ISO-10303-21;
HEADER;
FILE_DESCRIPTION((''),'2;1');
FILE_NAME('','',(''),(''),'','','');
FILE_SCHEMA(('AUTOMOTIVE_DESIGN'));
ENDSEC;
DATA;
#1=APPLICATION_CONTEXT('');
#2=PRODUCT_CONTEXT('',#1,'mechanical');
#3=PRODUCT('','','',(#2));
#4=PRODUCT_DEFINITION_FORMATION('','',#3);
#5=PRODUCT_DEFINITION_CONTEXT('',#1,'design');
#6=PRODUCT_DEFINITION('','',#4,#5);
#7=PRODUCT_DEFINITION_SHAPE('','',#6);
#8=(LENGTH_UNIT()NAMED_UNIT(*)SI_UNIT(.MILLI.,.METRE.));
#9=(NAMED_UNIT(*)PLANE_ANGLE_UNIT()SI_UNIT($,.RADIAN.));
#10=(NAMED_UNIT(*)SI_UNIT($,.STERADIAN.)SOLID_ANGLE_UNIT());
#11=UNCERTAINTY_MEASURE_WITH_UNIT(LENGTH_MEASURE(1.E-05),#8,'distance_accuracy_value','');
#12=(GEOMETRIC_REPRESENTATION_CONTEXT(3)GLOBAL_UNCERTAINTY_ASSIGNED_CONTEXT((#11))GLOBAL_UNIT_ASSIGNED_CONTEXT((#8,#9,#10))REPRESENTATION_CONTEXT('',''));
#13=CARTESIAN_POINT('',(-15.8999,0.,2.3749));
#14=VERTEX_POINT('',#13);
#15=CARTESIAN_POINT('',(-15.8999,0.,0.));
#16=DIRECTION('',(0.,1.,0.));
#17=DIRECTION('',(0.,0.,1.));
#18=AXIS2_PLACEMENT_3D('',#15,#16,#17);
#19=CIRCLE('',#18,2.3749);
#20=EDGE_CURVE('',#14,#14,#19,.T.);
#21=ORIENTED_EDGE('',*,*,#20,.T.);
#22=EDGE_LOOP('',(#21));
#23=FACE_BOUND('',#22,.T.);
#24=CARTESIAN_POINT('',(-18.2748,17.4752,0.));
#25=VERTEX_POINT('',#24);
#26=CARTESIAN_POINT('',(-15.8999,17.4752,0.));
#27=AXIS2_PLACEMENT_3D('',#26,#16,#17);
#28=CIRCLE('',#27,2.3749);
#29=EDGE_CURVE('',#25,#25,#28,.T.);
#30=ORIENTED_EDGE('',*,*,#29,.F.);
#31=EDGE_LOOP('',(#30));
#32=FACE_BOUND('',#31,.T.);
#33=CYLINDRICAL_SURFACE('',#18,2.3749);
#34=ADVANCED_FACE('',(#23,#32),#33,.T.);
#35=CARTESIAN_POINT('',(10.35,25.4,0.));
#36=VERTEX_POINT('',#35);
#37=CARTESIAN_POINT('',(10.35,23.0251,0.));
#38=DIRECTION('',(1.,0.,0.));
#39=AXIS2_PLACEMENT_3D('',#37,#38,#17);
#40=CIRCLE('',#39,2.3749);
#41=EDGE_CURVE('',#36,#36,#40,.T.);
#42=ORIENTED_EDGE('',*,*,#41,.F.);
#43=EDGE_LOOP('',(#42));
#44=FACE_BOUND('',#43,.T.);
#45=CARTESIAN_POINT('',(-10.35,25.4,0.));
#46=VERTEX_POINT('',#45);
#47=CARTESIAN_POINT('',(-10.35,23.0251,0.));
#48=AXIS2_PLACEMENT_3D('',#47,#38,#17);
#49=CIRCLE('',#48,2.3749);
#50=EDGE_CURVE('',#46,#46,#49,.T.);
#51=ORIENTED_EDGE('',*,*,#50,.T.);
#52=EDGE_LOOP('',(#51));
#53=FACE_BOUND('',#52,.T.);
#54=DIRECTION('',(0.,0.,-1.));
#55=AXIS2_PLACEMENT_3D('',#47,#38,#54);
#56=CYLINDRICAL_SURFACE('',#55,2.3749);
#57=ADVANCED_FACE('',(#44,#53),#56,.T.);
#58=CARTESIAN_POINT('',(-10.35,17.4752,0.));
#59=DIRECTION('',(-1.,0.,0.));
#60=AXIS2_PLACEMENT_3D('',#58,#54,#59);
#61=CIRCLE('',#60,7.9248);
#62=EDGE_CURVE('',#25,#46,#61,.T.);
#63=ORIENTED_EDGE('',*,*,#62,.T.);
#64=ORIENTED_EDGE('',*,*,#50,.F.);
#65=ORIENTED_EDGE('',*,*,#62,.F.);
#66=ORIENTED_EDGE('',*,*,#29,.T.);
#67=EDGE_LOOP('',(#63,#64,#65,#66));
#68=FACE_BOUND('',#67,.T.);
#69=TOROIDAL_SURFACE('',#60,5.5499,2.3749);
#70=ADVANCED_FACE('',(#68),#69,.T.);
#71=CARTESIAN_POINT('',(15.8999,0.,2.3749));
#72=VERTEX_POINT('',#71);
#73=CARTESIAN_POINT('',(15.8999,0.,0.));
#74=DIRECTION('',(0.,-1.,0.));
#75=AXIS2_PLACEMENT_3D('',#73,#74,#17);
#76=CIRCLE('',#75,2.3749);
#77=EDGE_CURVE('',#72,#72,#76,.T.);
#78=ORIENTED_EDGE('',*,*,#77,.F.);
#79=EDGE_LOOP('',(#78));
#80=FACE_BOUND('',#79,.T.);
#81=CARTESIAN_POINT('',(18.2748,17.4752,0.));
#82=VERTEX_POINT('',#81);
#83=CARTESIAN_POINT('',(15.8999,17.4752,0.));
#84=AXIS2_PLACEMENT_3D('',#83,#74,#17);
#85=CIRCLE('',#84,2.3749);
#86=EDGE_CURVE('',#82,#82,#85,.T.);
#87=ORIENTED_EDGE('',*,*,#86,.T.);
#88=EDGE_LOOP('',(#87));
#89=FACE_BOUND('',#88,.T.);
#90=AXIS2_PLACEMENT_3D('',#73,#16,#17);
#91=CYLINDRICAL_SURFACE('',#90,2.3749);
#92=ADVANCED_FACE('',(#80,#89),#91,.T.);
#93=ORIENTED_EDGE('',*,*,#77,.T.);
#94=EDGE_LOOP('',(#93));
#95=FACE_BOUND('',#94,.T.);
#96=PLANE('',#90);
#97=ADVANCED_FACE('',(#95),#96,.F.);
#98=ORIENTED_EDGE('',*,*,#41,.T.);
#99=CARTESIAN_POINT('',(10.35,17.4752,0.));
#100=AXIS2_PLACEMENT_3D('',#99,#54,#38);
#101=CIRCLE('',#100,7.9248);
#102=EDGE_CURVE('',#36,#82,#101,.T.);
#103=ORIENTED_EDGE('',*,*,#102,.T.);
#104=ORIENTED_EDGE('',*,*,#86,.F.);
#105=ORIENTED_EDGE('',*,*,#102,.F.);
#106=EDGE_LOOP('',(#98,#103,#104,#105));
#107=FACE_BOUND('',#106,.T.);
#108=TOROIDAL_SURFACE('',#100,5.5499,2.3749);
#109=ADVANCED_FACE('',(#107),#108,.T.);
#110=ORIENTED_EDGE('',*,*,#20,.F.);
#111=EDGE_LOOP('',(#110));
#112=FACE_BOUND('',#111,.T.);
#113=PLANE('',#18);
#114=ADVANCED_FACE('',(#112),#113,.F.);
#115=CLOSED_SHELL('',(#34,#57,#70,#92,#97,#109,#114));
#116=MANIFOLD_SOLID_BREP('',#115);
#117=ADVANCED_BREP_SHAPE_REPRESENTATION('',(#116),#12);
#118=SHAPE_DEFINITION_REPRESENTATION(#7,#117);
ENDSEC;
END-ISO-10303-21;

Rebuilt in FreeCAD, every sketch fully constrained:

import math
import FreeCAD as App
import Part
import Sketcher
Q = App.Units.Quantity

doc = App.newDocument("Part")
params = doc.addObject("Spreadsheet::Sheet", "Params")
for row, (alias, value) in enumerate([
    ("sketch1_diameter", "0.187 in"),
    ("sketch2_height", "0.688 in"),
], start=1):
    params.set(f"A{row}", alias)
    params.set(f"B{row}", "=" + value)
    params.setAlias(f"B{row}", alias)

body = doc.addObject("PartDesign::Body", "Body")

# Sketch on XZ plane
sketch1 = body.newObject("Sketcher::SketchObject", "Sketch")
sketch1.AttachmentSupport = (doc.getObject("XZ_Plane"), [""])
sketch1.MapMode = "FlatFace"
sketch1.addGeometry(Part.Circle(App.Vector(-15.9, 0, 0), App.Vector(0, 0, 1), 2.4), False)
sketch1.addConstraint([
    Sketcher.Constraint("PointOnObject", 0, 3, -1),
    Sketcher.Constraint("Diameter", 0, Q("0.187 in")),
    Sketcher.Constraint("DistanceX", 0, 3, -1, 1, 15.8999),
])
sketch1.setExpression("Constraints[1]", "Params.sketch1_diameter")

# Sketch on XY plane
sketch2 = body.newObject("Sketcher::SketchObject", "Sketch001")
sketch2.AttachmentSupport = (doc.getObject("XY_Plane"), [""])
sketch2.MapMode = "FlatFace"
sketch2.addGeometry([
    Part.LineSegment(App.Vector(0, 23, 0), App.Vector(-10, 23, 0)),
    Part.ArcOfCircle(Part.Circle(App.Vector(-10, 17, 0), App.Vector(0, 0, 1), 6), math.radians(90), math.radians(180)),
    Part.LineSegment(App.Vector(-16, 17, 0), App.Vector(-16, 0, 0)),
], False)
sketch2.addConstraint([
    Sketcher.Constraint("Tangent", 0, 2, 1, 1),
    Sketcher.Constraint("Tangent", 1, 2, 2, 1),
    Sketcher.Constraint("Horizontal", 0),
    Sketcher.Constraint("Vertical", 2),
    Sketcher.Constraint("PointOnObject", 0, 1, -2),
    Sketcher.Constraint("PointOnObject", 2, 2, -1),
    Sketcher.Constraint("Radius", 1, Q("0.2185 in")),
    Sketcher.Constraint("DistanceY", 2, 2, 2, 1, Q("0.688 in")),
    Sketcher.Constraint("DistanceX", 0, 2, 0, 1, 10.35),
])
sketch2.setExpression("Constraints[7]", "Params.sketch2_height")
doc.recompute()

additivepipe = body.newObject("PartDesign::AdditivePipe", "AdditivePipe")
additivepipe.Profile = sketch1
additivepipe.Spine = (sketch2, ["Edge1", "Edge2", "Edge3"])
body2 = doc.addObject("PartDesign::Body", "Body001")
doc.recompute()

body2.BaseFeature = body
doc.recompute()

mirroring = doc.addObject("Part::Mirroring", "Mirroring")
mirroring.Source = body
mirroring.Base = App.Vector(0, 0, 0)
mirroring.Normal = App.Vector(1, 0, 0)
body3 = doc.addObject("PartDesign::Body", "Body002")
body3.BaseFeature = mirroring
boolean = body2.newObject("PartDesign::Boolean", "Boolean")
boolean.Type = "Fuse"
boolean.addObjects([body3])
doc.recompute()
mirroring.Visibility = False

doc.recompute()
